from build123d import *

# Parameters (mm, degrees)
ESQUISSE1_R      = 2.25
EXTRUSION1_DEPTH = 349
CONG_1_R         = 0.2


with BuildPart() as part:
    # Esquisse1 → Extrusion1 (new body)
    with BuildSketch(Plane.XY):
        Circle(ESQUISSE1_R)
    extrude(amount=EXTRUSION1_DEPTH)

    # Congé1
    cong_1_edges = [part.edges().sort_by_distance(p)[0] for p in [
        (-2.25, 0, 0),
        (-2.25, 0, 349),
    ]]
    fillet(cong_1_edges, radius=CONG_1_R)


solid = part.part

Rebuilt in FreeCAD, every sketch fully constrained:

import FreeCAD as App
import Part
import Sketcher


def edges_at(feature, points):
    """Names of the edges that pass closest to the given points."""
    edges = feature.Shape.Edges
    near = lambda p: min(range(len(edges)), key=lambda i: edges[i].distToShape(Part.Vertex(*p))[0])
    return sorted({f"Edge{near(p) + 1}" for p in points})

doc = App.newDocument("Part")
body = doc.addObject("PartDesign::Body", "Body")

sketch1 = body.newObject("Sketcher::SketchObject", "Sketch")
sketch1.AttachmentSupport = (doc.getObject("XY_Plane"), [""])
sketch1.MapMode = "FlatFace"
sketch1.addGeometry(Part.Circle(App.Vector(0, 0, 0), App.Vector(0, 0, 1), 2.2), False)
sketch1.addConstraint([
    Sketcher.Constraint("Coincident", 0, 3, -1, 1),
    Sketcher.Constraint("Diameter", 0, 4.5),
])
pad1 = body.newObject("PartDesign::Pad", "Pad")
pad1.Profile = sketch1
pad1.Length = 349
doc.recompute()

fillet = body.newObject("PartDesign::Fillet", "Fillet")
fillet.Base = (pad1, edges_at(pad1, [(-2.25, 0, 0), (-2.25, 0, 349)]))
fillet.Radius = 0.2

doc.recompute()
